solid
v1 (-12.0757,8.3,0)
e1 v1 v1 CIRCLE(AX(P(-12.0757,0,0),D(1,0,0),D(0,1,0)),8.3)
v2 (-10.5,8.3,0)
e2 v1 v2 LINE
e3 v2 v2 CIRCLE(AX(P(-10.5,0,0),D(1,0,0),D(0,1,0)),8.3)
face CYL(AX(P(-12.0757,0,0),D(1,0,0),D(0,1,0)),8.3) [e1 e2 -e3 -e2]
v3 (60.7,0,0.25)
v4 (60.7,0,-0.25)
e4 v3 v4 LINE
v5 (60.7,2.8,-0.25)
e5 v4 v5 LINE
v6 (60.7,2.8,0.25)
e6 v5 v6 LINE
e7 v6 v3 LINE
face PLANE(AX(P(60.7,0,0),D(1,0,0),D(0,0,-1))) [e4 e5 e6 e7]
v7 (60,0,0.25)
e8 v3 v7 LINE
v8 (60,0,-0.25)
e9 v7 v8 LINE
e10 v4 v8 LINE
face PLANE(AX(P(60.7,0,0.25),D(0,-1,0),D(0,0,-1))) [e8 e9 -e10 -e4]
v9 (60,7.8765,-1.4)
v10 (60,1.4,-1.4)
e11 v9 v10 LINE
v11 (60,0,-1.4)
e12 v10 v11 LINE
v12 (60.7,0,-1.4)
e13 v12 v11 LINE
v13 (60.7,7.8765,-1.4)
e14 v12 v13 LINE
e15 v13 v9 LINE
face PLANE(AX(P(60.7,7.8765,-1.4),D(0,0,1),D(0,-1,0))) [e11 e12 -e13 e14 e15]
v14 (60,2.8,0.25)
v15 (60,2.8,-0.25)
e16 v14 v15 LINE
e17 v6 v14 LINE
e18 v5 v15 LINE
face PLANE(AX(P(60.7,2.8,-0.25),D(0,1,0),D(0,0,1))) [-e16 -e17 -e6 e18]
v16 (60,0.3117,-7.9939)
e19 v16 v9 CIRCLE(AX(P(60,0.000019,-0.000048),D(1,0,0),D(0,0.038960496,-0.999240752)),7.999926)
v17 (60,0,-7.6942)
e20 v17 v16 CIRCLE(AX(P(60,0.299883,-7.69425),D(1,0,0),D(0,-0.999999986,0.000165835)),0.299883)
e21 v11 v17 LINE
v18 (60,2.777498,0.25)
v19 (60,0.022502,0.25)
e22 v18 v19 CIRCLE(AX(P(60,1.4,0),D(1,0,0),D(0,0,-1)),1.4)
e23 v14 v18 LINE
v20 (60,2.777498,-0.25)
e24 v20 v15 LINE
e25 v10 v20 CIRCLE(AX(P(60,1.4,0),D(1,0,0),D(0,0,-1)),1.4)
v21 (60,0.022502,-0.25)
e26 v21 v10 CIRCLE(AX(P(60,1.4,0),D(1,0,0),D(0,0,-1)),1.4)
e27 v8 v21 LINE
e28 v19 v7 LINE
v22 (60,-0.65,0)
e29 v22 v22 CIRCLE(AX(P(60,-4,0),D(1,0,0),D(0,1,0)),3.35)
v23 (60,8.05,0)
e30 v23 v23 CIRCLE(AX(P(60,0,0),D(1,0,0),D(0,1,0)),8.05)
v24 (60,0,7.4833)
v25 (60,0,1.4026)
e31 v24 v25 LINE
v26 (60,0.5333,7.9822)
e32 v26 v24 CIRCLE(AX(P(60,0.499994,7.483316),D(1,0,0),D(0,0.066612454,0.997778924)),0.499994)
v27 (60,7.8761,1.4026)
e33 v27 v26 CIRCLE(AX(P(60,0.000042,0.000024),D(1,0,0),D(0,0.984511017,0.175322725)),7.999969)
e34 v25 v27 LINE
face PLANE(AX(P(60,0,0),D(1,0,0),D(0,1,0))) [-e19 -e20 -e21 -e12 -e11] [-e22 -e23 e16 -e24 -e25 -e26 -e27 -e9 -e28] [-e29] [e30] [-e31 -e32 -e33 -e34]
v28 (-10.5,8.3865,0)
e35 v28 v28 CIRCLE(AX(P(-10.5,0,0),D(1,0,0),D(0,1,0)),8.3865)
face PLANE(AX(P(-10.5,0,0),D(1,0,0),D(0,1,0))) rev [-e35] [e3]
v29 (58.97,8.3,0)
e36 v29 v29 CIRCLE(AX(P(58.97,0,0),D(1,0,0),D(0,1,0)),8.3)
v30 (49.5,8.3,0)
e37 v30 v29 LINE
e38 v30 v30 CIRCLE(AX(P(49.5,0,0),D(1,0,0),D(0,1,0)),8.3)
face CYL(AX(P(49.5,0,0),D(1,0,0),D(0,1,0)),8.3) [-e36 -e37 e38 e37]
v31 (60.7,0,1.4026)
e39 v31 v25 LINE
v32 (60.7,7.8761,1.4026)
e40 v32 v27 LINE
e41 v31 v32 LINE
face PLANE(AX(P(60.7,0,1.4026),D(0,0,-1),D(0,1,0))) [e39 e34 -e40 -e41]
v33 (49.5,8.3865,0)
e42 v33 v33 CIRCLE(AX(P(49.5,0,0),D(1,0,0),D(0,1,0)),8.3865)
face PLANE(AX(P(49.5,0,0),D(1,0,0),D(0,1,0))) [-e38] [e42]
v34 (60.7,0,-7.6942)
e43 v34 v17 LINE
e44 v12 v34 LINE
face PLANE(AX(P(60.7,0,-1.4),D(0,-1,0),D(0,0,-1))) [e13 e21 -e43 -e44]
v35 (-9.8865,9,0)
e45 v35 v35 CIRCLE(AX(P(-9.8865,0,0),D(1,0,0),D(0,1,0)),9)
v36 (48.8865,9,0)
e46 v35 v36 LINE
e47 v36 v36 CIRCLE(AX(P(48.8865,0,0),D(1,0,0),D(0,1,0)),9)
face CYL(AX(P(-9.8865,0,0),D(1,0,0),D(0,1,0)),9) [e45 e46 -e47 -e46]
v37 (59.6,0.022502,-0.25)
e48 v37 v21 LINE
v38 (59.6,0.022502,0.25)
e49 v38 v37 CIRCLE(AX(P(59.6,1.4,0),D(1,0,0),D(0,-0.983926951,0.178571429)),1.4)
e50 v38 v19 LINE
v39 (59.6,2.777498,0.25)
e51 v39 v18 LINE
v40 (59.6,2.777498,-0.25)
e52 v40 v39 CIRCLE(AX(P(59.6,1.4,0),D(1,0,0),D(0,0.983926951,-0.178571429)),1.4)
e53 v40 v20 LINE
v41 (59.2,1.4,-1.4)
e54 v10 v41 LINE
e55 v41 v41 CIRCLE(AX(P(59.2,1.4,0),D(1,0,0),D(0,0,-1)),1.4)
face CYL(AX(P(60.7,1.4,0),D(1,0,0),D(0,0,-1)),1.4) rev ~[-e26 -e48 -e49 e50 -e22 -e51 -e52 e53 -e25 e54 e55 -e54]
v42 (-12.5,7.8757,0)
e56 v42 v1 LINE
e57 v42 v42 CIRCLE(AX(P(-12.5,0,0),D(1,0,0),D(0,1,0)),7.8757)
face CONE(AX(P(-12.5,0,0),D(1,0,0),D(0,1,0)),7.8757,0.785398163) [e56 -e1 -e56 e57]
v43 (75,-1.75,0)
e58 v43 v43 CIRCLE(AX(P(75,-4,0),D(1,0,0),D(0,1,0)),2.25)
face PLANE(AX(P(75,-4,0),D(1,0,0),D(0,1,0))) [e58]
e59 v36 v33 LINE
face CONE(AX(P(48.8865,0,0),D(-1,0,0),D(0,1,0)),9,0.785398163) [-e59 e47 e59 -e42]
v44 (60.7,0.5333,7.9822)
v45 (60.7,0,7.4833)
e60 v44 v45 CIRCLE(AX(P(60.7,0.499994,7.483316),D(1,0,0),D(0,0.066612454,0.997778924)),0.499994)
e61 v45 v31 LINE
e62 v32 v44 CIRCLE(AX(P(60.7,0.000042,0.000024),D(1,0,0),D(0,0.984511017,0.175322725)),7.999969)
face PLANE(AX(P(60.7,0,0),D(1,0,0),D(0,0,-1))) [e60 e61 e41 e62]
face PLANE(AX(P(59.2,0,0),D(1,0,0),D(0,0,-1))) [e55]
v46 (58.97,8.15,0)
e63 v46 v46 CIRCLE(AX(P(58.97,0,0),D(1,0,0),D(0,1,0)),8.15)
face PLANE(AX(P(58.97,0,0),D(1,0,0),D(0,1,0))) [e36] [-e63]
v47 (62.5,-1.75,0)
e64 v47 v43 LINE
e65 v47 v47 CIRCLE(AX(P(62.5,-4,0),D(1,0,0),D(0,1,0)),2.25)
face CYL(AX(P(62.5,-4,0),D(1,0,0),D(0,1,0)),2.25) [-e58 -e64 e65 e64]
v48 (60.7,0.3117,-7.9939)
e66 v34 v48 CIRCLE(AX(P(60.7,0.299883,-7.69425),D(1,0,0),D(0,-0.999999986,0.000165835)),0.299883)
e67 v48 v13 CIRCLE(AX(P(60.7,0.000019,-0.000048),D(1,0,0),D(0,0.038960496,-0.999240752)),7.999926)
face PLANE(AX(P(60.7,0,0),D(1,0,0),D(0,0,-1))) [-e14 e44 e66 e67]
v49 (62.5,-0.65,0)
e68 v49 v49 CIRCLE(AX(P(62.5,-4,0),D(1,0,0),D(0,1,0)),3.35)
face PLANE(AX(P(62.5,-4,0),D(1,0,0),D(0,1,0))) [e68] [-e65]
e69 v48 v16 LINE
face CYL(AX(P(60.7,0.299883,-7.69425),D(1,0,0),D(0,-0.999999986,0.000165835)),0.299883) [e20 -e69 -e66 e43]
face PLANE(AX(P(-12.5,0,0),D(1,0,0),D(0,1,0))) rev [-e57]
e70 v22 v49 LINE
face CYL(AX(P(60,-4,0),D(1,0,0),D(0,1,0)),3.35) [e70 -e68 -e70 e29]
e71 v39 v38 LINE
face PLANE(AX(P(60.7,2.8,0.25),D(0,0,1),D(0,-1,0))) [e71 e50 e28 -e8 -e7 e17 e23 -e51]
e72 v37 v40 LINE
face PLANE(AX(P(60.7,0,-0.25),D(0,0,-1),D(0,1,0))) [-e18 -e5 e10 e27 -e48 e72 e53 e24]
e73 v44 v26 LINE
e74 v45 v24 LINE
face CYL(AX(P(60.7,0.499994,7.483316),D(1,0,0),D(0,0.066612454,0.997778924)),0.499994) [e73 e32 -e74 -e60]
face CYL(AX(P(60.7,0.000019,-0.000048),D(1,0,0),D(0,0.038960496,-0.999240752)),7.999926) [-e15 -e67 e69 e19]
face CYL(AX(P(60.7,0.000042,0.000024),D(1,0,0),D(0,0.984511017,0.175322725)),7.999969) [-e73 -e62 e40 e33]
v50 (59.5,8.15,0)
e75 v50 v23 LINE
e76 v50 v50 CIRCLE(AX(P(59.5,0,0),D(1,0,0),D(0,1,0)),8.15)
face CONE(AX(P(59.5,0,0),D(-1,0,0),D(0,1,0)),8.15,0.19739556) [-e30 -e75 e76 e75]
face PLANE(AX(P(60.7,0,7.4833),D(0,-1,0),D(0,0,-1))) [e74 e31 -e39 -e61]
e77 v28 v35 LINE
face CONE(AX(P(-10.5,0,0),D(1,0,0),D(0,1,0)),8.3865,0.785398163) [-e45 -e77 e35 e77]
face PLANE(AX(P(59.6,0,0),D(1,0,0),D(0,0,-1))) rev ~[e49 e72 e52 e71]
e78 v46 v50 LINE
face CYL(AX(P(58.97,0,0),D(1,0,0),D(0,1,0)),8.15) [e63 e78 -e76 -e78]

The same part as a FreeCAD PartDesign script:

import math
import FreeCAD as App
import Part
import Sketcher
Q = App.Units.Quantity

doc = App.newDocument("Part")
body = doc.addObject("PartDesign::Body", "Body")

# Sketch on XY plane
sketch1 = body.newObject("Sketcher::SketchObject", "Sketch")
sketch1.AttachmentSupport = (doc.getObject("XY_Plane"), [""])
sketch1.MapMode = "FlatFace"
sketch1.addGeometry([
    Part.LineSegment(App.Vector(-12.5, 0, 0), App.Vector(60, 0, 0)),  # 0
    Part.LineSegment(App.Vector(60, 0, 0), App.Vector(60, 8.05, 0)),  # 1
    Part.LineSegment(App.Vector(60, 8.05, 0), App.Vector(59.5, 8.15, 0)),  # 2
    Part.LineSegment(App.Vector(59.5, 8.15, 0), App.Vector(58.97, 8.15, 0)),  # 3
    Part.LineSegment(App.Vector(58.97, 8.15, 0), App.Vector(58.97, 8.3, 0)),  # 4
    Part.LineSegment(App.Vector(58.97, 8.3, 0), App.Vector(49.5, 8.3, 0)),  # 5
    Part.LineSegment(App.Vector(49.5, 8.3, 0), App.Vector(49.5, 8.39, 0)),  # 6
    Part.LineSegment(App.Vector(49.5, 8.39, 0), App.Vector(48.89, 9, 0)),  # 7
    Part.LineSegment(App.Vector(48.89, 9, 0), App.Vector(-9.89, 9, 0)),  # 8
    Part.LineSegment(App.Vector(-9.89, 9, 0), App.Vector(-10.5, 8.39, 0)),  # 9
    Part.LineSegment(App.Vector(-10.5, 8.39, 0), App.Vector(-10.5, 8.3, 0)),  # 10
    Part.LineSegment(App.Vector(-10.5, 8.3, 0), App.Vector(-12.08, 8.3, 0)),  # 11
    Part.LineSegment(App.Vector(-12.08, 8.3, 0), App.Vector(-12.5, 7.88, 0)),  # 12
    Part.LineSegment(App.Vector(-12.5, 7.88, 0), App.Vector(-12.5, 0, 0)),  # 13
], False)
sketch1.addConstraint([
    Sketcher.Constraint("Coincident", 0, 2, 1, 1),
    Sketcher.Constraint("Coincident", 1, 2, 2, 1),
    Sketcher.Constraint("Coincident", 2, 2, 3, 1),
    Sketcher.Constraint("Coincident", 3, 2, 4, 1),
    Sketcher.Constraint("Coincident", 4, 2, 5, 1),
    Sketcher.Constraint("Coincident", 5, 2, 6, 1),
    Sketcher.Constraint("Coincident", 6, 2, 7, 1),
    Sketcher.Constraint("Coincident", 7, 2, 8, 1),
    Sketcher.Constraint("Coincident", 8, 2, 9, 1),
    Sketcher.Constraint("Coincident", 9, 2, 10, 1),
    Sketcher.Constraint("Coincident", 10, 2, 11, 1),
    Sketcher.Constraint("Coincident", 11, 2, 12, 1),
    Sketcher.Constraint("Coincident", 12, 2, 13, 1),
    Sketcher.Constraint("Coincident", 13, 2, 0, 1),
    Sketcher.Constraint("Horizontal", 0),
    Sketcher.Constraint("Vertical", 1),
    Sketcher.Constraint("Horizontal", 3),
    Sketcher.Constraint("Vertical", 4),
    Sketcher.Constraint("Horizontal", 5),
    Sketcher.Constraint("Vertical", 6),
    Sketcher.Constraint("Horizontal", 8),
    Sketcher.Constraint("Vertical", 10),
    Sketcher.Constraint("Horizontal", 11),
    Sketcher.Constraint("Vertical", 13),
    Sketcher.Constraint("PointOnObject", 0, 2, -1),
    Sketcher.Constraint("Perpendicular", 7, 9),
    Sketcher.Constraint("Parallel", 9, 12),
    Sketcher.Constraint("Horizontal", 6, 2, 9, 2),
    Sketcher.Constraint("Horizontal", 5, 2, 10, 2),
    Sketcher.Constraint("Equal", 7, 9),
    Sketcher.Constraint("DistanceX", 0, 1, 0, 2, Q("72.5 mm")),
    Sketcher.Constraint("DistanceX", -1, 1, 0, 2, Q("60 mm")),
    Sketcher.Constraint("DistanceY", -1, 1, 7, 2, Q("9 mm")),
    Sketcher.Constraint("DistanceX", 5, 2, 2, 2, Q("10 mm")),
    Sketcher.Constraint("DistanceX", 9, 2, 6, 2, Q("60 mm")),
    Sketcher.Constraint("DistanceX", 12, 2, 10, 2, Q("2 mm")),
    Sketcher.Constraint("Distance", 12, Q("0.6 mm")),
    Sketcher.Constraint("DistanceX", 3, 2, 3, 1, Q("0.53 mm")),
    Sketcher.Constraint("DistanceY", 1, 1, 1, 2, Q("8.05 mm")),
    Sketcher.Constraint("DistanceY", 4, 1, 4, 2, Q("0.15 mm")),
    Sketcher.Constraint("DistanceY", -1, 1, 4, 2, Q("8.3 mm")),
    Sketcher.Constraint("DistanceX", 8, 2, 8, 1, Q("58.773 mm")),
])
revolution = body.newObject("PartDesign::Revolution", "Revolution")
revolution.Profile = sketch1
revolution.ReferenceAxis = (sketch1, ["H_Axis"])
revolution.Angle = 360

# Sketch on XY plane
sketch2 = body.newObject("Sketcher::SketchObject", "Sketch001")
sketch2.AttachmentSupport = (doc.getObject("XY_Plane"), [""])
sketch2.MapMode = "FlatFace"
sketch2.addGeometry([
    Part.LineSegment(App.Vector(60, -4, 0), App.Vector(75, -4, 0)),  # 0
    Part.LineSegment(App.Vector(75, -4, 0), App.Vector(75, -1.8, 0)),  # 1
    Part.LineSegment(App.Vector(75, -1.8, 0), App.Vector(62.5, -1.8, 0)),  # 2
    Part.LineSegment(App.Vector(62.5, -1.8, 0), App.Vector(62.5, -0.7, 0)),  # 3
    Part.LineSegment(App.Vector(62.5, -0.7, 0), App.Vector(60, -0.7, 0)),  # 4
    Part.LineSegment(App.Vector(60, -0.7, 0), App.Vector(60, -4, 0)),  # 5
], False)
sketch2.addGeometry(Part.LineSegment(App.Vector(60, -4, 0), App.Vector(75, -4, 0)), True)  # axis
sketch2.addConstraint([
    Sketcher.Constraint("Coincident", 0, 2, 1, 1),
    Sketcher.Constraint("Coincident", 1, 2, 2, 1),
    Sketcher.Constraint("Coincident", 2, 2, 3, 1),
    Sketcher.Constraint("Coincident", 3, 2, 4, 1),
    Sketcher.Constraint("Coincident", 4, 2, 5, 1),
    Sketcher.Constraint("Coincident", 5, 2, 0, 1),
    Sketcher.Constraint("Horizontal", 0),
    Sketcher.Constraint("Vertical", 1),
    Sketcher.Constraint("Horizontal", 2),
    Sketcher.Constraint("Vertical", 3),
    Sketcher.Constraint("Horizontal", 4),
    Sketcher.Constraint("Vertical", 5),
    Sketcher.Constraint("Horizontal", 6),
    Sketcher.Constraint("Coincident", 6, 1, 5, 2),
    Sketcher.Constraint("Vertical", 1, 2, 6, 2),
    Sketcher.Constraint("DistanceX", 0, 1, 0, 2, Q("15 mm")),
    Sketcher.Constraint("DistanceX", 2, 2, 2, 1, Q("12.5 mm")),
    Sketcher.Constraint("DistanceY", 3, 1, 3, 2, Q("1.1 mm")),
    Sketcher.Constraint("DistanceX", -1, 1, 0, 2, Q("75 mm")),
    Sketcher.Constraint("DistanceY", 0, 2, -1, 1, Q("4 mm")),
    Sketcher.Constraint("DistanceY", 1, 1, 1, 2, Q("2.25 mm")),
])
revolution2 = body.newObject("PartDesign::Revolution", "Revolution001")
revolution2.Profile = sketch2
revolution2.ReferenceAxis = (sketch2, ["Axis0"])
revolution2.Angle = 360

# Sketch on YZ plane
sketch3 = body.newObject("Sketcher::SketchObject", "Sketch002")
sketch3.AttachmentSupport = (doc.getObject("YZ_Plane"), [""])
sketch3.MapMode = "FlatFace"
sketch3.AttachmentOffset = App.Placement(App.Vector(0, 0, 60.7), App.Rotation())
sketch3.addGeometry([
    Part.ArcOfCircle(Part.Circle(App.Vector(0, 0, 0), App.Vector(0, 0, 1), 8), math.radians(-88), math.radians(-10)),
    Part.LineSegment(App.Vector(7.88, -1.4, 0), App.Vector(0, -1.4, 0)),
    Part.LineSegment(App.Vector(0, -1.4, 0), App.Vector(0, -7.69, 0)),
    Part.ArcOfCircle(Part.Circle(App.Vector(0.3, -7.69, 0), App.Vector(0, 0, 1), 0.3), math.radians(180), math.radians(272)),
], False)
sketch3.addConstraint([
    Sketcher.Constraint("Coincident", 0, 2, 1, 1),
    Sketcher.Constraint("Coincident", 1, 2, 2, 1),
    Sketcher.Constraint("Tangent", 2, 2, 3, 1),
    Sketcher.Constraint("Tangent", 3, 2, 0, 1),
    Sketcher.Constraint("Horizontal", 1),
    Sketcher.Constraint("Vertical", 2),
    Sketcher.Constraint("Coincident", 0, 3, -1, 1),
    Sketcher.Constraint("PointOnObject", 1, 2, -2),
    Sketcher.Constraint("Radius", 0, Q("8 mm")),
    Sketcher.Constraint("Radius", 3, Q("0.3 mm")),
    Sketcher.Constraint("DistanceY", 0, 2, -1, 1, Q("1.4 mm")),
])
pad1 = body.newObject("PartDesign::Pad", "Pad")
pad1.Profile = sketch3
pad1.Length = 0.7
pad1.Reversed = True

# Sketch on YZ plane
sketch4 = body.newObject("Sketcher::SketchObject", "Sketch003")
sketch4.AttachmentSupport = (doc.getObject("YZ_Plane"), [""])
sketch4.MapMode = "FlatFace"
sketch4.AttachmentOffset = App.Placement(App.Vector(0, 0, 60.7), App.Rotation())
sketch4.addGeometry([
    Part.ArcOfCircle(Part.Circle(App.Vector(0, 0, 0), App.Vector(0, 0, 1), 8), math.radians(10), math.radians(86)),
    Part.ArcOfCircle(Part.Circle(App.Vector(0.5, 7.5, 0), App.Vector(0, 0, 1), 0.5), math.radians(86), math.radians(180)),
    Part.LineSegment(App.Vector(0, 7.5, 0), App.Vector(0, 1.4, 0)),
    Part.LineSegment(App.Vector(0, 1.4, 0), App.Vector(7.9, 1.4, 0)),
], False)
sketch4.addConstraint([
    Sketcher.Constraint("Tangent", 0, 2, 1, 1),
    Sketcher.Constraint("Tangent", 1, 2, 2, 1),
    Sketcher.Constraint("Coincident", 2, 2, 3, 1),
    Sketcher.Constraint("Coincident", 3, 2, 0, 1),
    Sketcher.Constraint("Vertical", 2),
    Sketcher.Constraint("Horizontal", 3),
    Sketcher.Constraint("Coincident", 0, 3, -1, 1),
    Sketcher.Constraint("PointOnObject", 1, 2, -2),
    Sketcher.Constraint("Radius", 0, Q("8 mm")),
    Sketcher.Constraint("Radius", 1, Q("0.5 mm")),
    Sketcher.Constraint("DistanceX", 3, 1, 3, 2, Q("7.876 mm")),
])
pad2 = body.newObject("PartDesign::Pad", "Pad001")
pad2.Profile = sketch4
pad2.Length = 0.7
pad2.Reversed = True

# Sketch on YZ plane
sketch5 = body.newObject("Sketcher::SketchObject", "Sketch004")
sketch5.AttachmentSupport = (doc.getObject("YZ_Plane"), [""])
sketch5.MapMode = "FlatFace"
sketch5.AttachmentOffset = App.Placement(App.Vector(0, 0, 60.7), App.Rotation())
sketch5.addGeometry(Part.Circle(App.Vector(1.4, 0, 0), App.Vector(0, 0, 1), 1.4), False)
sketch5.addConstraint([
    Sketcher.Constraint("PointOnObject", 0, 3, -1),
    Sketcher.Constraint("Diameter", 0, Q("2.8 mm")),
    Sketcher.Constraint("DistanceX", -1, 1, 0, 3, Q("1.4 mm")),
])
pocket1 = body.newObject("PartDesign::Pocket", "Pocket")
pocket1.Profile = sketch5
pocket1.Length = 1.5

# Sketch on YZ plane
sketch6 = body.newObject("Sketcher::SketchObject", "Sketch005")
sketch6.AttachmentSupport = (doc.getObject("YZ_Plane"), [""])
sketch6.MapMode = "FlatFace"
sketch6.AttachmentOffset = App.Placement(App.Vector(0, 0, 60.7), App.Rotation())
sketch6.addGeometry([
    Part.LineSegment(App.Vector(2.8, 0.2, 0), App.Vector(0, 0.2, 0)),
    Part.LineSegment(App.Vector(0, 0.2, 0), App.Vector(0, -0.2, 0)),
    Part.LineSegment(App.Vector(0, -0.2, 0), App.Vector(2.8, -0.2, 0)),
    Part.LineSegment(App.Vector(2.8, -0.2, 0), App.Vector(2.8, 0.2, 0)),
], False)
sketch6.addConstraint([
    Sketcher.Constraint("Coincident", 0, 2, 1, 1),
    Sketcher.Constraint("Coincident", 1, 2, 2, 1),
    Sketcher.Constraint("Coincident", 2, 2, 3, 1),
    Sketcher.Constraint("Coincident", 3, 2, 0, 1),
    Sketcher.Constraint("Horizontal", 0),
    Sketcher.Constraint("Vertical", 1),
    Sketcher.Constraint("Horizontal", 2),
    Sketcher.Constraint("Vertical", 3),
    Sketcher.Constraint("Symmetric", 0, 2, 1, 2, -1, 1),
    Sketcher.Constraint("DistanceX", 0, 2, 0, 1, Q("2.8 mm")),
    Sketcher.Constraint("DistanceY", 1, 2, 1, 1, Q("0.5 mm")),
])
pad3 = body.newObject("PartDesign::Pad", "Pad002")
pad3.Profile = sketch6
pad3.Length = 1.1
pad3.Reversed = True

doc.recompute()
